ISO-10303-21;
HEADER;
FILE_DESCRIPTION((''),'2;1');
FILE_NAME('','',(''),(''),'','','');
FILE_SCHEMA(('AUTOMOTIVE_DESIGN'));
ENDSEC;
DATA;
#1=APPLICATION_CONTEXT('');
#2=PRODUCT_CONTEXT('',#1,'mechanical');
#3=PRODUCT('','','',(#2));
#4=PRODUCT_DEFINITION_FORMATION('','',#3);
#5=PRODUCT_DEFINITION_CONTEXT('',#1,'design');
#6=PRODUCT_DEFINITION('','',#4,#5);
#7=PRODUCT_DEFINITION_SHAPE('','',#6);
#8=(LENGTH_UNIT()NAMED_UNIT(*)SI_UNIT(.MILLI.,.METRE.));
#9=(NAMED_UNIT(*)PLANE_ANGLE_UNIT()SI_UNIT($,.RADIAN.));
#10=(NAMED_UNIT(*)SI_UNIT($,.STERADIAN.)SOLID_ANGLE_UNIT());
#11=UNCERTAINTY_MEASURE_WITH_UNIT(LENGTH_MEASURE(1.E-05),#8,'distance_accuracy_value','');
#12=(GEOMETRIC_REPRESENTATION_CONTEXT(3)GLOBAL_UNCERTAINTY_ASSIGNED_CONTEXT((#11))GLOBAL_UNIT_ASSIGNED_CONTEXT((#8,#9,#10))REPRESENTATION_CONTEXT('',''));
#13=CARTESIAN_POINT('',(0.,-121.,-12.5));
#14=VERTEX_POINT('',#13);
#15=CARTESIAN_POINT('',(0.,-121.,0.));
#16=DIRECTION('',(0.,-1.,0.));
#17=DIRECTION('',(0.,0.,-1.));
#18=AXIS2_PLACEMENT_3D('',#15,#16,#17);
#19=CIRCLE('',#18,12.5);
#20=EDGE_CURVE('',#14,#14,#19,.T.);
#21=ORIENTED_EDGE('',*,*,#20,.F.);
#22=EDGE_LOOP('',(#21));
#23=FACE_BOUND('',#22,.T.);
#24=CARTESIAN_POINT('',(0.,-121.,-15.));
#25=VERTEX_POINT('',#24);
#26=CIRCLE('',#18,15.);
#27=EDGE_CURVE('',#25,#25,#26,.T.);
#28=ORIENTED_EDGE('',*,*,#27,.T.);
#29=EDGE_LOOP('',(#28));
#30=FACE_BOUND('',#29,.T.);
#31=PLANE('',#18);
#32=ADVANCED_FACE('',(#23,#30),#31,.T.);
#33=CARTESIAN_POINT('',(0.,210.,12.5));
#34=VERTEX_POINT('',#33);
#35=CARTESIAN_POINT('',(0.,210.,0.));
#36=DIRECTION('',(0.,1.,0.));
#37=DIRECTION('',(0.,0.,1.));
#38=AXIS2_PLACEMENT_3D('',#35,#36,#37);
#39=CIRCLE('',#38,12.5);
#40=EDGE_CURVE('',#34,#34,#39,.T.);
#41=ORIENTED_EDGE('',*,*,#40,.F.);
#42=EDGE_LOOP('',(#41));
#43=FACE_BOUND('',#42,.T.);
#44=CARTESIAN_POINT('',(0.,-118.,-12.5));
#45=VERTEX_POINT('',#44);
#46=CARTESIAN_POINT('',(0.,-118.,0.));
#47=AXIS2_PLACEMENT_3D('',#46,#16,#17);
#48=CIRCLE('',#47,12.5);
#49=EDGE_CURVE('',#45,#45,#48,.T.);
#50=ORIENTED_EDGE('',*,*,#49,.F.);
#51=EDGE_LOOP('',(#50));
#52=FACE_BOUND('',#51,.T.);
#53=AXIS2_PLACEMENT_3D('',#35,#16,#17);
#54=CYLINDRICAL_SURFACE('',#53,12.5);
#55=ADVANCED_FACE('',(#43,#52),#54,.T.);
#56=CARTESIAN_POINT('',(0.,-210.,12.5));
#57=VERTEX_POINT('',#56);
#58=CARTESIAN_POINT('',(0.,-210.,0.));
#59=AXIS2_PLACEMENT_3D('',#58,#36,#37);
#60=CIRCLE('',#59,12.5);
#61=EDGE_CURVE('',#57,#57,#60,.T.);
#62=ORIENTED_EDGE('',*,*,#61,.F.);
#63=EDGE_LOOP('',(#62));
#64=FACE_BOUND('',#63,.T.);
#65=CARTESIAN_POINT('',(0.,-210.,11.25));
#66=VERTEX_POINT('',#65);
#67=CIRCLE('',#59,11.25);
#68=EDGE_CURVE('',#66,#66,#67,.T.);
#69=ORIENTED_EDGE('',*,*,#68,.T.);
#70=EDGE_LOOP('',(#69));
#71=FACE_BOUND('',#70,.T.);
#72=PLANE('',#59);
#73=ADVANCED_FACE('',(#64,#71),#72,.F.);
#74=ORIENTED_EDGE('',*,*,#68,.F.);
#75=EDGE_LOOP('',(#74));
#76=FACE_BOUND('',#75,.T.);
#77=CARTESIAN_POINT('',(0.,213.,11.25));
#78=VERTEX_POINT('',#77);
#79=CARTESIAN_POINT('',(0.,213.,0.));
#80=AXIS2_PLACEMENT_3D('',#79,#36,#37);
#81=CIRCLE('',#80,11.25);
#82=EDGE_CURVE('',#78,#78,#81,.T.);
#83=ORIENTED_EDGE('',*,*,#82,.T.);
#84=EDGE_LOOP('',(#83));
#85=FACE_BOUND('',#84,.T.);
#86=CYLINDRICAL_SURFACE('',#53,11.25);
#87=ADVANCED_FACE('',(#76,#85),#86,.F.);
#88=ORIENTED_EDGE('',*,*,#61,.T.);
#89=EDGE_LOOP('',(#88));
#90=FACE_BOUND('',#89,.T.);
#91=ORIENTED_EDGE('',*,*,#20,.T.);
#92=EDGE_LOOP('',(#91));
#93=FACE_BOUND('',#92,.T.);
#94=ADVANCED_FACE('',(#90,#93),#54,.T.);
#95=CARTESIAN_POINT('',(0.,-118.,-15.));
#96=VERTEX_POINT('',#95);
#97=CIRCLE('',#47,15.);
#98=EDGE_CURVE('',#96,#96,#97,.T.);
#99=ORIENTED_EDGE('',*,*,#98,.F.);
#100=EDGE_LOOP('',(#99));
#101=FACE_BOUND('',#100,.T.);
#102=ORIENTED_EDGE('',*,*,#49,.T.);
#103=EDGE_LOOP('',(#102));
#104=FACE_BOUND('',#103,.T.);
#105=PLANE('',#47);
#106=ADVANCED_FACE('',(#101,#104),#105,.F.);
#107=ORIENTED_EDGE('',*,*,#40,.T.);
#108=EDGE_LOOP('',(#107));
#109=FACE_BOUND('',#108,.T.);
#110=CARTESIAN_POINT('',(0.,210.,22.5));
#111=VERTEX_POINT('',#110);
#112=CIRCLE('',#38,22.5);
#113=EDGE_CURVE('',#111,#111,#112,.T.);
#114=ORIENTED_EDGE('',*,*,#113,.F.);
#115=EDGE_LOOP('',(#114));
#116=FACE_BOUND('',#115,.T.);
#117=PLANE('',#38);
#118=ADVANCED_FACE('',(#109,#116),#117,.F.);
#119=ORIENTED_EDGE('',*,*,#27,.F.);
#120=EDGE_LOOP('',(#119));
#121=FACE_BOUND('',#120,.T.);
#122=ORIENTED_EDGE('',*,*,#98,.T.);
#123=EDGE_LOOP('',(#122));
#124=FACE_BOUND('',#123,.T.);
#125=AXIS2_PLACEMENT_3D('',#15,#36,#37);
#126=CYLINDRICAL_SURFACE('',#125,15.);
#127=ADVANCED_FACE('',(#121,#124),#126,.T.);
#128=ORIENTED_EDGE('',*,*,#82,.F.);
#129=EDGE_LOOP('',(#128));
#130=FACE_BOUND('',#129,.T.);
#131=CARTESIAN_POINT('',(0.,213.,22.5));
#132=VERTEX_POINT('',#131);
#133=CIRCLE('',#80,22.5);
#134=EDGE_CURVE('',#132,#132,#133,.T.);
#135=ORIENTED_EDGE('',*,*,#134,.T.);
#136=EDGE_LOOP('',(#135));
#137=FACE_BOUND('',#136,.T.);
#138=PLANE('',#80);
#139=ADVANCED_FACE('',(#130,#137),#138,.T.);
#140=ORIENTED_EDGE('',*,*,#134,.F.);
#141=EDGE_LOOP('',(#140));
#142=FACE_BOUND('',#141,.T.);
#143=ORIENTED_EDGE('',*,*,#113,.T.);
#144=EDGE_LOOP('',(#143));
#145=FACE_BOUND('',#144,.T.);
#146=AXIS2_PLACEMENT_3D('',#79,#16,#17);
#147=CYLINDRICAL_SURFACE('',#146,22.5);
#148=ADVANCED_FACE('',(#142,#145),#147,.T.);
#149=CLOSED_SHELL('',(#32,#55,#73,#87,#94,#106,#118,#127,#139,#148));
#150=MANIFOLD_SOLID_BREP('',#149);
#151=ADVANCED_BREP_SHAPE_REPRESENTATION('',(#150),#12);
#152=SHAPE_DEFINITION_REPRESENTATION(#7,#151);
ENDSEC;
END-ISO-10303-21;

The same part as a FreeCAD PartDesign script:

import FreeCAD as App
import Part
import Sketcher

doc = App.newDocument("Part")
params = doc.addObject("Spreadsheet::Sheet", "Params")
for row, (alias, value) in enumerate([
    ("sketch1_diameter", "25 mm"),
    ("sketch1_diameter2", "22.5 mm"),
    ("pad1_length", "420 mm"),
    ("sketch2_diameter", "45 mm"),
    ("sketch2_diameter2", "22.5 mm"),
    ("pad2_length", "3 mm"),
    ("sketch3_diameter", "30 mm"),
    ("sketch3_diameter2", "22.5 mm"),
    ("pad3_length", "3 mm"),
], start=1):
    params.set(f"A{row}", alias)
    params.set(f"B{row}", "=" + value)
    params.setAlias(f"B{row}", alias)

body = doc.addObject("PartDesign::Body", "Body")

# Sketch on XZ plane
sketch1 = body.newObject("Sketcher::SketchObject", "Sketch")
sketch1.AttachmentSupport = (doc.getObject("XZ_Plane"), [""])
sketch1.MapMode = "FlatFace"
sketch1.addGeometry(Part.Circle(App.Vector(0, 0, 0), App.Vector(0, 0, 1), 12.5), False)
sketch1.addGeometry(Part.Circle(App.Vector(0, 0, 0), App.Vector(0, 0, 1), 11.25), False)
sketch1.addConstraint(Sketcher.Constraint("Coincident", 0, 3, -1, 1))
sketch1.addConstraint(Sketcher.Constraint("Coincident", 1, 3, -1, 1))
sketch1.addConstraint(Sketcher.Constraint("Diameter", 0, 25.0))
sketch1.addConstraint(Sketcher.Constraint("Diameter", 1, 22.5))
sketch1.setExpression("Constraints[2]", "Params.sketch1_diameter")
sketch1.setExpression("Constraints[3]", "Params.sketch1_diameter2")
pad1 = body.newObject("PartDesign::Pad", "Pad")
pad1.Profile = sketch1
pad1.setExpression("Length", "Params.pad1_length")
pad1.Midplane = True

# Sketch on XZ plane
sketch2 = body.newObject("Sketcher::SketchObject", "Sketch001")
sketch2.AttachmentSupport = (doc.getObject("XZ_Plane"), [""])
sketch2.MapMode = "FlatFace"
sketch2.AttachmentOffset = App.Placement(App.Vector(0, 0, -210), App.Rotation())
sketch2.addGeometry(Part.Circle(App.Vector(0, 0, 0), App.Vector(0, 0, 1), 22.5), False)
sketch2.addGeometry(Part.Circle(App.Vector(0, 0, 0), App.Vector(0, 0, 1), 11.25), False)
sketch2.addConstraint(Sketcher.Constraint("Coincident", 0, 3, -1, 1))
sketch2.addConstraint(Sketcher.Constraint("Coincident", 1, 3, -1, 1))
sketch2.addConstraint(Sketcher.Constraint("Diameter", 0, 45.0))
sketch2.addConstraint(Sketcher.Constraint("Diameter", 1, 22.5))
sketch2.setExpression("Constraints[2]", "Params.sketch2_diameter")
sketch2.setExpression("Constraints[3]", "Params.sketch2_diameter2")
pad2 = body.newObject("PartDesign::Pad", "Pad001")
pad2.Profile = sketch2
pad2.setExpression("Length", "Params.pad2_length")
pad2.Reversed = True

# Sketch on XZ plane
sketch3 = body.newObject("Sketcher::SketchObject", "Sketch002")
sketch3.AttachmentSupport = (doc.getObject("XZ_Plane"), [""])
sketch3.MapMode = "FlatFace"
sketch3.AttachmentOffset = App.Placement(App.Vector(0, 0, 121), App.Rotation())
sketch3.addGeometry(Part.Circle(App.Vector(0, 0, 0), App.Vector(0, 0, 1), 15), False)
sketch3.addGeometry(Part.Circle(App.Vector(0, 0, 0), App.Vector(0, 0, 1), 11.25), False)
sketch3.addConstraint(Sketcher.Constraint("Coincident", 0, 3, -1, 1))
sketch3.addConstraint(Sketcher.Constraint("Coincident", 1, 3, -1, 1))
sketch3.addConstraint(Sketcher.Constraint("Diameter", 0, 30.0))
sketch3.addConstraint(Sketcher.Constraint("Diameter", 1, 22.5))
sketch3.setExpression("Constraints[2]", "Params.sketch3_diameter")
sketch3.setExpression("Constraints[3]", "Params.sketch3_diameter2")
pad3 = body.newObject("PartDesign::Pad", "Pad002")
pad3.Profile = sketch3
pad3.setExpression("Length", "Params.pad3_length")
pad3.Reversed = True

doc.recompute()
